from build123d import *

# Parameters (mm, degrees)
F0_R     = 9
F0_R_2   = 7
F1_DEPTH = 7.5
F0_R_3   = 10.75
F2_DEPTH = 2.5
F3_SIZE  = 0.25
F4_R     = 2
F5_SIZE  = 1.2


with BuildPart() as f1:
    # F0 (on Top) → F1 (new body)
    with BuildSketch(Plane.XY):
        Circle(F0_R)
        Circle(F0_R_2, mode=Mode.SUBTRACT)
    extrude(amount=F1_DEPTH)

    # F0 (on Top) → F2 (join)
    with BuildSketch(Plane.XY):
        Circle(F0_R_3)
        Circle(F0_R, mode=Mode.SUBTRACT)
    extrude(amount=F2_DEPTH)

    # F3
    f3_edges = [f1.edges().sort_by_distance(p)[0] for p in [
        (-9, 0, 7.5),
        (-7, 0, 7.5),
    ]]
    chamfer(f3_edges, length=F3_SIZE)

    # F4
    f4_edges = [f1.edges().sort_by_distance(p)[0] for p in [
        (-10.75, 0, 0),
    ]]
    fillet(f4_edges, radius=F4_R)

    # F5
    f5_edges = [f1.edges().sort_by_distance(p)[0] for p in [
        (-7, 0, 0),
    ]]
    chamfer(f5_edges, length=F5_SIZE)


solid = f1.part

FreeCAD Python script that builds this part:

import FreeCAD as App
import Part
import Sketcher
Q = App.Units.Quantity


def edges_at(feature, points):
    """Names of the edges that pass closest to the given points."""
    edges = feature.Shape.Edges
    near = lambda p: min(range(len(edges)), key=lambda i: edges[i].distToShape(Part.Vertex(*p))[0])
    return sorted({f"Edge{near(p) + 1}" for p in points})

doc = App.newDocument("Part")
body = doc.addObject("PartDesign::Body", "Body")

# Sketch on XY plane
sketch1 = body.newObject("Sketcher::SketchObject", "Sketch")
sketch1.AttachmentSupport = (doc.getObject("XY_Plane"), [""])
sketch1.MapMode = "FlatFace"
sketch1.addGeometry([
    Part.Circle(App.Vector(0, 0, 0), App.Vector(0, 0, 1), 9),
    Part.Circle(App.Vector(0, 0, 0), App.Vector(0, 0, 1), 7),
], False)
sketch1.addConstraint([
    Sketcher.Constraint("Coincident", 0, 3, -1, 1),
    Sketcher.Constraint("Coincident", 1, 3, -1, 1),
    Sketcher.Constraint("Diameter", 0, Q("18 mm")),
    Sketcher.Constraint("Diameter", 1, Q("14 mm")),
])
pad1 = body.newObject("PartDesign::Pad", "Pad")
pad1.Profile = sketch1
pad1.Length = 7.5

# Sketch on XY plane
sketch2 = body.newObject("Sketcher::SketchObject", "Sketch001")
sketch2.AttachmentSupport = (doc.getObject("XY_Plane"), [""])
sketch2.MapMode = "FlatFace"
sketch2.addGeometry([
    Part.Circle(App.Vector(0, 0, 0), App.Vector(0, 0, 1), 11),
    Part.Circle(App.Vector(0, 0, 0), App.Vector(0, 0, 1), 9),
], False)
sketch2.addConstraint([
    Sketcher.Constraint("Coincident", 0, 3, -1, 1),
    Sketcher.Constraint("Coincident", 1, 3, -1, 1),
    Sketcher.Constraint("Diameter", 1, Q("18 mm")),
    Sketcher.Constraint("Diameter", 0, Q("21.5 mm")),
])
pad2 = body.newObject("PartDesign::Pad", "Pad001")
pad2.Profile = sketch2
pad2.Length = 2.5
doc.recompute()

chamfer = body.newObject("PartDesign::Chamfer", "Chamfer")
chamfer.Base = (pad2, edges_at(pad2, [(-9, 0, 7.5), (-7, 0, 7.5)]))
chamfer.Size = 0.25
doc.recompute()

fillet = body.newObject("PartDesign::Fillet", "Fillet")
fillet.Base = (chamfer, edges_at(chamfer, [(-10.75, 0, 0)]))
fillet.Radius = 2
doc.recompute()

chamfer2 = body.newObject("PartDesign::Chamfer", "Chamfer001")
chamfer2.Base = (fillet, edges_at(fillet, [(-7, 0, 0)]))
chamfer2.Size = 1.2

doc.recompute()
